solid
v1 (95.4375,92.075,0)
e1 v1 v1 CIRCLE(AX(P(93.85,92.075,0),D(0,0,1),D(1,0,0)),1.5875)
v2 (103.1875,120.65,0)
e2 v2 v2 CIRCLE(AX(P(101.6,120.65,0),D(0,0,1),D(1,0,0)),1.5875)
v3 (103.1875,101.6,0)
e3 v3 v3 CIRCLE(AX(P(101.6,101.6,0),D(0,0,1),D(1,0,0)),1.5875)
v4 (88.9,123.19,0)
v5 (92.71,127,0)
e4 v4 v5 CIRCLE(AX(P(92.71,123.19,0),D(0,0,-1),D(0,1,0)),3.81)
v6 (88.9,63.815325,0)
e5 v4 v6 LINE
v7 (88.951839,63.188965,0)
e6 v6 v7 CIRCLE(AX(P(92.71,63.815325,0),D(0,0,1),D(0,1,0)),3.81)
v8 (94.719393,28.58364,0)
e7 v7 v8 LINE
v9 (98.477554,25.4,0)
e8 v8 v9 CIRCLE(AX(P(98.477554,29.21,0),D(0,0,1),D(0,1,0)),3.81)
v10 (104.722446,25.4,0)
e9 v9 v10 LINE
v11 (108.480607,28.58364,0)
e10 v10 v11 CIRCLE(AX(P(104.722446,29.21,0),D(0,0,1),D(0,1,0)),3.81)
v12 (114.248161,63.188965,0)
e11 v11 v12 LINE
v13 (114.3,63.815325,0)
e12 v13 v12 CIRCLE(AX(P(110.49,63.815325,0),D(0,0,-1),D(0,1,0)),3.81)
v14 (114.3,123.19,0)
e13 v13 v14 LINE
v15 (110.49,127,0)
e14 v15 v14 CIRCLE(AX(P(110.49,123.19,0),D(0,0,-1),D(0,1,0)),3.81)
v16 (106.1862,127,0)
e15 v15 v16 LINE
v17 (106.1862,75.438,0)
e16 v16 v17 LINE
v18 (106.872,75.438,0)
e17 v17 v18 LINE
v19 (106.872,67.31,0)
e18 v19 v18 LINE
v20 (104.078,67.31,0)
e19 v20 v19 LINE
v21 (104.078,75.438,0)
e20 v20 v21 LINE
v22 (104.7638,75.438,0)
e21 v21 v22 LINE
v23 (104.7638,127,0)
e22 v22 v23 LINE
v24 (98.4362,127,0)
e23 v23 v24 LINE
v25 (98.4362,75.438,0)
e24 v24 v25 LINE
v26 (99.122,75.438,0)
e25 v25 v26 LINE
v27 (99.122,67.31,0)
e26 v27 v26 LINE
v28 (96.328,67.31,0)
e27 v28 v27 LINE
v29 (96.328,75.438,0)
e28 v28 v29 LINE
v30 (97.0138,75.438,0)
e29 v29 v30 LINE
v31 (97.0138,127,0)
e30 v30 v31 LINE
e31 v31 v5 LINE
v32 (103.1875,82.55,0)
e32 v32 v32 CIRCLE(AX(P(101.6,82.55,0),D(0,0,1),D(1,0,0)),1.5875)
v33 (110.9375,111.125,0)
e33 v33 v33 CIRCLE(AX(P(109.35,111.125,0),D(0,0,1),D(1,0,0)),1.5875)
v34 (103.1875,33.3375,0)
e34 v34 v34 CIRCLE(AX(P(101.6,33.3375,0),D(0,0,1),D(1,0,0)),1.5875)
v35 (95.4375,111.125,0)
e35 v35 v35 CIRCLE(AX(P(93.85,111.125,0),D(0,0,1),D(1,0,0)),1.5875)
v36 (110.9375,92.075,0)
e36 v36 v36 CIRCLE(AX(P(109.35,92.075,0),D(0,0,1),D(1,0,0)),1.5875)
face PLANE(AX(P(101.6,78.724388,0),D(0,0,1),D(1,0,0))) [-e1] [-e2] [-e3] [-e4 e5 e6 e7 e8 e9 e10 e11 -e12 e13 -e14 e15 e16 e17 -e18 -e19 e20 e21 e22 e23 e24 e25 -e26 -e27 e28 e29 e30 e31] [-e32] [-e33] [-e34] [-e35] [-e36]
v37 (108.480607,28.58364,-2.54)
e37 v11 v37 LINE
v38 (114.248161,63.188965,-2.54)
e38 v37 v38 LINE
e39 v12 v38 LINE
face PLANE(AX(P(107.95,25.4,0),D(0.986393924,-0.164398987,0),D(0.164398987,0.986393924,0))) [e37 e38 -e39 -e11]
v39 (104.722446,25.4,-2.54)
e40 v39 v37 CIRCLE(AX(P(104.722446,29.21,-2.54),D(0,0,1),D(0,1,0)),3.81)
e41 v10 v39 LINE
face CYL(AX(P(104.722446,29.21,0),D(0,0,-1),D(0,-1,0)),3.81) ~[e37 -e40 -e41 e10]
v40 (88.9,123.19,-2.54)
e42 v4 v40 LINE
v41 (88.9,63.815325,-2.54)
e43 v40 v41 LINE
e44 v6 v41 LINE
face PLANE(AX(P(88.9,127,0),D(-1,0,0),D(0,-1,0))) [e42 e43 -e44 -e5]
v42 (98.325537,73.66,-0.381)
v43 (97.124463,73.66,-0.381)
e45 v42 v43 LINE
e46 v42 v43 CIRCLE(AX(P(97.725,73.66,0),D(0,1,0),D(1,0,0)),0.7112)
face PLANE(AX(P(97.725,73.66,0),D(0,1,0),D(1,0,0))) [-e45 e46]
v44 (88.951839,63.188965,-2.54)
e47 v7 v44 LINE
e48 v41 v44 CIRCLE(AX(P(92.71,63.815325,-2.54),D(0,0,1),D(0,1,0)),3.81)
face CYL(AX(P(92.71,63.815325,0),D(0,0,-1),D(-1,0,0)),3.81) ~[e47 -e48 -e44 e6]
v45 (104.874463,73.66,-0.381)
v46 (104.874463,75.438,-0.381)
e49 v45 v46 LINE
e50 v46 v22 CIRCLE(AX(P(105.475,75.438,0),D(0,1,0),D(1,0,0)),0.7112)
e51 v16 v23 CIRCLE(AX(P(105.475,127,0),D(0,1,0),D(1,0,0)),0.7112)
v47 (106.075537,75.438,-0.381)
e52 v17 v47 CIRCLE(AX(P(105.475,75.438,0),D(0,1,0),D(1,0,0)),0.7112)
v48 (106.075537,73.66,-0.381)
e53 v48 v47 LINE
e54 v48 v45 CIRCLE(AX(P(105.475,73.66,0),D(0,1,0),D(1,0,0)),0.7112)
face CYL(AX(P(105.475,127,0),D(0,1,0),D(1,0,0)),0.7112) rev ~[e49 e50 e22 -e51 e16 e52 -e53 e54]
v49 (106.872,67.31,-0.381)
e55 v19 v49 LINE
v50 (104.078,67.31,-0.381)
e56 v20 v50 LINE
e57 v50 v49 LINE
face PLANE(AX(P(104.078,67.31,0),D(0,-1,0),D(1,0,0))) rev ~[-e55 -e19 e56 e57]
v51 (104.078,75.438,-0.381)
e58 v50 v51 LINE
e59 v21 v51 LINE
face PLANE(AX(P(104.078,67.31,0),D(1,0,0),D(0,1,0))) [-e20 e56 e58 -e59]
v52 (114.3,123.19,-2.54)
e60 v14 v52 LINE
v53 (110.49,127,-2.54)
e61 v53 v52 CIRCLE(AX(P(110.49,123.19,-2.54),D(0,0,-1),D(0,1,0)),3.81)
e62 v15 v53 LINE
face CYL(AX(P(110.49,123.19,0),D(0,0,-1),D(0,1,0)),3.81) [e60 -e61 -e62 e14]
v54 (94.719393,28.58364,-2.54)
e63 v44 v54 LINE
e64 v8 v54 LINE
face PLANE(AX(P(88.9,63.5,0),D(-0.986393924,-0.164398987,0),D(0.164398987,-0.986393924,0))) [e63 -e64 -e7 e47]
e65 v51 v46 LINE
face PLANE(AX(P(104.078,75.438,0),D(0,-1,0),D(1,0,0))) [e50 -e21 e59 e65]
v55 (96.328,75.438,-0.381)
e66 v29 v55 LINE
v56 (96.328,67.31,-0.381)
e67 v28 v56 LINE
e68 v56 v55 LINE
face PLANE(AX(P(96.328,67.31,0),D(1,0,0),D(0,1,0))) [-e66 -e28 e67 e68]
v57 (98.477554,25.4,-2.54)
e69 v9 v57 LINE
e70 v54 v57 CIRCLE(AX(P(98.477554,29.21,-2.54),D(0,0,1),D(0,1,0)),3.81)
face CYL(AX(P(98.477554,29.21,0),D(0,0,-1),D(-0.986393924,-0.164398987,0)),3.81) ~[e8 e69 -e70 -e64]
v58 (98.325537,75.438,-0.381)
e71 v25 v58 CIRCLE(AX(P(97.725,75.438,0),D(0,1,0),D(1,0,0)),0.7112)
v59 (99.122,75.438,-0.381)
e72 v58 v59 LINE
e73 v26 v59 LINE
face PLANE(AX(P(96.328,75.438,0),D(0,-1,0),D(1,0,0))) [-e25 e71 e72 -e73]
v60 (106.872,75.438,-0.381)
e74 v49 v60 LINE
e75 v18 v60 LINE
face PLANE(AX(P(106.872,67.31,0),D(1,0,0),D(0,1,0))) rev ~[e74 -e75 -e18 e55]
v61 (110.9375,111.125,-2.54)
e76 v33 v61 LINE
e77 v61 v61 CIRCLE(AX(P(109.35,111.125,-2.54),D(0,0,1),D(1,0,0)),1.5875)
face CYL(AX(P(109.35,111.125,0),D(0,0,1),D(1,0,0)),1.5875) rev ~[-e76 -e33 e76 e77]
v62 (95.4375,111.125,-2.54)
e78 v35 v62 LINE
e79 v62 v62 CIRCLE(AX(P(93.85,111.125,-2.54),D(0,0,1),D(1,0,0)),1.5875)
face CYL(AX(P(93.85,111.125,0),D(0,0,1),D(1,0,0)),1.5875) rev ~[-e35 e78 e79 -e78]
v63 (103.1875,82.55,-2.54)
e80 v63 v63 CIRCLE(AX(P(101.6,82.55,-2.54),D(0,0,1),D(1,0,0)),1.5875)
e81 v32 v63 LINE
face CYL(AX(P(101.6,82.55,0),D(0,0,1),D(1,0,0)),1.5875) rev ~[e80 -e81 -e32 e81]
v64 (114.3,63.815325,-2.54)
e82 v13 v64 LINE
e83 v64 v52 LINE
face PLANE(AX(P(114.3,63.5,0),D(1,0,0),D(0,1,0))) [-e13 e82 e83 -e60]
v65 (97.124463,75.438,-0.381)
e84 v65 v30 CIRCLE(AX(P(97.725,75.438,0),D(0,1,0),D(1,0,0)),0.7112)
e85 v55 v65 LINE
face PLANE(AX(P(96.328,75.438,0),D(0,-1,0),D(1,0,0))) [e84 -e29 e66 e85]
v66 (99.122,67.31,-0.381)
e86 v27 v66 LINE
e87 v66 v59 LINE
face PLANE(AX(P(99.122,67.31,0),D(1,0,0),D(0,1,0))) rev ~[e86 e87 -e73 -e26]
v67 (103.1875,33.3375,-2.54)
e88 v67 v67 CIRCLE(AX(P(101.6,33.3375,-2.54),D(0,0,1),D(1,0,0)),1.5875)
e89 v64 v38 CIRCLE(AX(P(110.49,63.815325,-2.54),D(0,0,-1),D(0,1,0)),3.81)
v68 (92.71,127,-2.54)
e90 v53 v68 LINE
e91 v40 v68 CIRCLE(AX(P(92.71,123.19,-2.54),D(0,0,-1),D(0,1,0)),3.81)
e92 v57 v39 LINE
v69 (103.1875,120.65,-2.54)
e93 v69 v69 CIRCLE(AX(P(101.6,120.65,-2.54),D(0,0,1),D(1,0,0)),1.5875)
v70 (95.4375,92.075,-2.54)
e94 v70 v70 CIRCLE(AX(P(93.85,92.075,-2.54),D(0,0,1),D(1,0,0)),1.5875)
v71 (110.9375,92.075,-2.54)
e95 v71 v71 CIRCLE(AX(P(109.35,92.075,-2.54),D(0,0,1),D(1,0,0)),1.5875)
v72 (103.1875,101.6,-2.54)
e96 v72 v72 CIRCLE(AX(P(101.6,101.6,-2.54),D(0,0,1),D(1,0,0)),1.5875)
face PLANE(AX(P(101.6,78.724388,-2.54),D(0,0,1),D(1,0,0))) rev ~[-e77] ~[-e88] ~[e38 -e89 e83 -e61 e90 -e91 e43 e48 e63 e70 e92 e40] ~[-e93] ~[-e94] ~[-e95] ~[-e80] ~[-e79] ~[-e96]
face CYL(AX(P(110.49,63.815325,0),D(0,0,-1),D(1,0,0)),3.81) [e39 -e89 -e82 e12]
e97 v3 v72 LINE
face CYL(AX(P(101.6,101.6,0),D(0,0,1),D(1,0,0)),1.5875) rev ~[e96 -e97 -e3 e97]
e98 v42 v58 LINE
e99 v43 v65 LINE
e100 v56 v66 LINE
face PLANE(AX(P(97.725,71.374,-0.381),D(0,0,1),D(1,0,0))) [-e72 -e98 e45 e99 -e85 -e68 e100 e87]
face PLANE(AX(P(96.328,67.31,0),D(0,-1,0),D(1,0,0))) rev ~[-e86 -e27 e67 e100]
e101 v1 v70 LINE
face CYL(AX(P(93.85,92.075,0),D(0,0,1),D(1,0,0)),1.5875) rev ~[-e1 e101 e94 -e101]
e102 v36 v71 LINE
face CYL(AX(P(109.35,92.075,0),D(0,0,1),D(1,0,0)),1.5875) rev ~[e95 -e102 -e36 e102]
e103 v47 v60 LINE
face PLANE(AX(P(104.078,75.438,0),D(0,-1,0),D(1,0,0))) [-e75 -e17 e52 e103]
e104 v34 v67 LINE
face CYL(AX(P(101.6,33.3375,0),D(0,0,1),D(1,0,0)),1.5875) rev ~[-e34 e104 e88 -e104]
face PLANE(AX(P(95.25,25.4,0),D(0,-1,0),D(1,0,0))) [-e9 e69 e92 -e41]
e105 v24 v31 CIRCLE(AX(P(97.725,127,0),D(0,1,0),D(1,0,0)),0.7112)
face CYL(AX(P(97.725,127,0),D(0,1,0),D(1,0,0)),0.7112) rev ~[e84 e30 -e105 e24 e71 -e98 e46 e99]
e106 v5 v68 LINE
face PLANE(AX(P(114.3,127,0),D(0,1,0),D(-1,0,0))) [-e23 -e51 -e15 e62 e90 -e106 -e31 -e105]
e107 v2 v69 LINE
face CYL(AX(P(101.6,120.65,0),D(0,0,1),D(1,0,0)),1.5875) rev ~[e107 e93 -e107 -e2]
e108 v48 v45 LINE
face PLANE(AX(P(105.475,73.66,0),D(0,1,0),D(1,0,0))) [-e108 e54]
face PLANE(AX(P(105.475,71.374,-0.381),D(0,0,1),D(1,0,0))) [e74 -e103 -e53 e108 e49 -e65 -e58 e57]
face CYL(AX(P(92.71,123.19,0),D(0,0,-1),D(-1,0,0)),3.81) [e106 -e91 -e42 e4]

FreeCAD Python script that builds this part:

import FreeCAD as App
import Part
import Sketcher
Q = App.Units.Quantity


def edges_at(feature, points):
    """Names of the edges that pass closest to the given points."""
    edges = feature.Shape.Edges
    near = lambda p: min(range(len(edges)), key=lambda i: edges[i].distToShape(Part.Vertex(*p))[0])
    return sorted({f"Edge{near(p) + 1}" for p in points})

doc = App.newDocument("Part")
body = doc.addObject("PartDesign::Body", "Body")

# Sketch on XY plane
sketch1 = body.newObject("Sketcher::SketchObject", "Sketch")
sketch1.AttachmentSupport = (doc.getObject("XY_Plane"), [""])
sketch1.MapMode = "FlatFace"
sketch1.addGeometry([
    Part.LineSegment(App.Vector(88.9, 127, 0), App.Vector(88.9, 63.5, 0)),  # 0
    Part.LineSegment(App.Vector(88.9, 63.5, 0), App.Vector(95.25, 25.4, 0)),  # 1
    Part.LineSegment(App.Vector(95.25, 25.4, 0), App.Vector(107.95, 25.4, 0)),  # 2
    Part.LineSegment(App.Vector(107.95, 25.4, 0), App.Vector(114.3, 63.5, 0)),  # 3
    Part.LineSegment(App.Vector(114.3, 63.5, 0), App.Vector(114.3, 127, 0)),  # 4
    Part.LineSegment(App.Vector(114.3, 127, 0), App.Vector(88.9, 127, 0)),  # 5
], False)
sketch1.addConstraint([
    Sketcher.Constraint("Coincident", 0, 2, 1, 1),
    Sketcher.Constraint("Coincident", 1, 2, 2, 1),
    Sketcher.Constraint("Coincident", 2, 2, 3, 1),
    Sketcher.Constraint("Coincident", 3, 2, 4, 1),
    Sketcher.Constraint("Coincident", 4, 2, 5, 1),
    Sketcher.Constraint("Coincident", 5, 2, 0, 1),
    Sketcher.Constraint("Vertical", 0),
    Sketcher.Constraint("Horizontal", 2),
    Sketcher.Constraint("Vertical", 4),
    Sketcher.Constraint("Horizontal", 5),
    Sketcher.Constraint("Horizontal", 0, 2, 3, 2),
    Sketcher.Constraint("Equal", 1, 3),
    Sketcher.Constraint("DistanceX", 5, 2, 5, 1, Q("1 in")),
    Sketcher.Constraint("DistanceX", 2, 1, 2, 2, Q("0.5 in")),
    Sketcher.Constraint("DistanceY", 0, 2, 0, 1, Q("2.5 in")),
    Sketcher.Constraint("DistanceY", -1, 1, 1, 2, Q("1 in")),
    Sketcher.Constraint("DistanceY", -1, 1, 4, 2, Q("5 in")),
    Sketcher.Constraint("DistanceX", -1, 1, 0, 2, Q("3.5 in")),
])
pad1 = body.newObject("PartDesign::Pad", "Pad")
pad1.Profile = sketch1
pad1.Length = Q("0.1 in")
pad1.Reversed = True

# Sketch on XY plane
sketch2 = body.newObject("Sketcher::SketchObject", "Sketch001")
sketch2.AttachmentSupport = (doc.getObject("XY_Plane"), [""])
sketch2.MapMode = "FlatFace"
sketch2.addGeometry([
    Part.Circle(App.Vector(93.85, 111.125, 0), App.Vector(0, 0, 1), 1.5875),  # 0
    Part.Circle(App.Vector(101.6, 120.65, 0), App.Vector(0, 0, 1), 1.5875),  # 1
    Part.Circle(App.Vector(109.35, 111.125, 0), App.Vector(0, 0, 1), 1.5875),  # 2
    Part.Circle(App.Vector(101.6, 101.6, 0), App.Vector(0, 0, 1), 1.5875),  # 3
    Part.Circle(App.Vector(93.85, 92.075, 0), App.Vector(0, 0, 1), 1.5875),  # 4
    Part.Circle(App.Vector(109.35, 92.075, 0), App.Vector(0, 0, 1), 1.5875),  # 5
    Part.Circle(App.Vector(101.6, 82.55, 0), App.Vector(0, 0, 1), 1.5875),  # 6
], False)
sketch2.addConstraint([
    Sketcher.Constraint("Equal", 0, 1),
    Sketcher.Constraint("Equal", 1, 2),
    Sketcher.Constraint("Equal", 2, 3),
    Sketcher.Constraint("Equal", 3, 4),
    Sketcher.Constraint("Equal", 4, 5),
    Sketcher.Constraint("Equal", 5, 6),
    Sketcher.Constraint("Horizontal", 0, 3, 2, 3),
    Sketcher.Constraint("Horizontal", 4, 3, 5, 3),
    Sketcher.Constraint("Vertical", 1, 3, 3, 3),
    Sketcher.Constraint("Vertical", 0, 3, 4, 3),
    Sketcher.Constraint("Vertical", 2, 3, 5, 3),
    Sketcher.Constraint("Vertical", 3, 3, 6, 3),
    Sketcher.Constraint("Diameter", 0, Q("0.125 in")),
    Sketcher.Constraint("DistanceX", -1, 1, 1, 3, Q("4 in")),
    Sketcher.Constraint("DistanceY", -1, 1, 3, 3, Q("4 in")),
    Sketcher.Constraint("DistanceY", -1, 1, 1, 3, Q("4.75 in")),
    Sketcher.Constraint("DistanceY", -1, 1, 6, 3, Q("3.25 in")),
    Sketcher.Constraint("DistanceY", 4, 3, 0, 3, Q("0.75 in")),
    Sketcher.Constraint("DistanceY", -1, 1, 0, 3, Q("4.375 in")),
    Sketcher.Constraint("DistanceX", -1, 1, 0, 3, 93.85),
    Sketcher.Constraint("DistanceX", -1, 1, 2, 3, 109.35),
])
pocket1 = body.newObject("PartDesign::Pocket", "Pocket")
pocket1.Profile = sketch2
pocket1.Length = Q("0.1 in")

# Sketch on XY plane
sketch3 = body.newObject("Sketcher::SketchObject", "Sketch002")
sketch3.AttachmentSupport = (doc.getObject("XY_Plane"), [""])
sketch3.MapMode = "FlatFace"
sketch3.addGeometry([
    Part.LineSegment(App.Vector(96.328, 75.438, 0), App.Vector(96.328, 67.31, 0)),  # 0
    Part.LineSegment(App.Vector(96.328, 67.31, 0), App.Vector(99.122, 67.31, 0)),  # 1
    Part.LineSegment(App.Vector(99.122, 67.31, 0), App.Vector(99.122, 75.438, 0)),  # 2
    Part.LineSegment(App.Vector(99.122, 75.438, 0), App.Vector(96.328, 75.438, 0)),  # 3
    Part.LineSegment(App.Vector(104.078, 75.438, 0), App.Vector(104.078, 67.31, 0)),  # 4
    Part.LineSegment(App.Vector(104.078, 67.31, 0), App.Vector(106.872, 67.31, 0)),  # 5
    Part.LineSegment(App.Vector(106.872, 67.31, 0), App.Vector(106.872, 75.438, 0)),  # 6
    Part.LineSegment(App.Vector(106.872, 75.438, 0), App.Vector(104.078, 75.438, 0)),  # 7
], False)
sketch3.addConstraint([
    Sketcher.Constraint("Coincident", 0, 2, 1, 1),
    Sketcher.Constraint("Coincident", 1, 2, 2, 1),
    Sketcher.Constraint("Coincident", 2, 2, 3, 1),
    Sketcher.Constraint("Coincident", 3, 2, 0, 1),
    Sketcher.Constraint("Coincident", 4, 2, 5, 1),
    Sketcher.Constraint("Coincident", 5, 2, 6, 1),
    Sketcher.Constraint("Coincident", 6, 2, 7, 1),
    Sketcher.Constraint("Coincident", 7, 2, 4, 1),
    Sketcher.Constraint("Vertical", 0),
    Sketcher.Constraint("Horizontal", 1),
    Sketcher.Constraint("Vertical", 2),
    Sketcher.Constraint("Horizontal", 3),
    Sketcher.Constraint("Vertical", 4),
    Sketcher.Constraint("Horizontal", 5),
    Sketcher.Constraint("Vertical", 6),
    Sketcher.Constraint("Horizontal", 7),
    Sketcher.Constraint("Horizontal", 1, 2, 4, 2),
    Sketcher.Constraint("Horizontal", 3, 2, 6, 2),
    Sketcher.Constraint("Equal", 3, 5),
    Sketcher.Constraint("DistanceX", 1, 1, 1, 2, Q("0.11 in")),
    Sketcher.Constraint("DistanceY", 0, 2, 0, 1, Q("0.32 in")),
    Sketcher.Constraint("DistanceY", -1, 1, 0, 2, Q("2.65 in")),
    Sketcher.Constraint("DistanceX", -1, 1, 0, 2, 96.328),
    Sketcher.Constraint("DistanceX", -1, 1, 4, 2, 104.078),
])
pocket2 = body.newObject("PartDesign::Pocket", "Pocket001")
pocket2.Profile = sketch3
pocket2.Length = Q("0.015 in")

# Sketch on XZ plane
sketch4 = body.newObject("Sketcher::SketchObject", "Sketch003")
sketch4.AttachmentSupport = (doc.getObject("XZ_Plane"), [""])
sketch4.MapMode = "FlatFace"
sketch4.AttachmentOffset = App.Placement(App.Vector(0, 0, -5 * 25.4), App.Rotation())
sketch4.addGeometry([
    Part.Circle(App.Vector(97.725, 0, 0), App.Vector(0, 0, 1), 0.7112),
    Part.Circle(App.Vector(105.475, 0, 0), App.Vector(0, 0, 1), 0.7112),
], False)
sketch4.addConstraint([
    Sketcher.Constraint("Equal", 0, 1),
    Sketcher.Constraint("PointOnObject", 0, 3, -1),
    Sketcher.Constraint("PointOnObject", 1, 3, -1),
    Sketcher.Constraint("Diameter", 0, Q("0.056 in")),
    Sketcher.Constraint("DistanceX", -1, 1, 0, 3, 97.725),
    Sketcher.Constraint("DistanceX", -1, 1, 1, 3, 105.475),
])
pocket3 = body.newObject("PartDesign::Pocket", "Pocket002")
pocket3.Profile = sketch4
pocket3.Length = Q("2.1 in")
pocket3.Reversed = True
doc.recompute()

fillet = body.newObject("PartDesign::Fillet", "Fillet")
fillet.Base = (pocket3, edges_at(pocket3, [
    (95.25, 25.4, -1.27),
    (88.9, 63.5, -1.27),
    (88.9, 127, -1.27),
    (114.3, 127, -1.27),
    (114.3, 63.5, -1.27),
    (107.95, 25.4, -1.27),
]))
fillet.Radius = Q("0.15 in")

# Sketch on XY plane
sketch5 = body.newObject("Sketcher::SketchObject", "Sketch004")
sketch5.AttachmentSupport = (doc.getObject("XY_Plane"), [""])
sketch5.MapMode = "FlatFace"
sketch5.addGeometry(Part.Circle(App.Vector(101.6, 33.3375, 0), App.Vector(0, 0, 1), 1.5875), False)
sketch5.addConstraint([
    Sketcher.Constraint("Diameter", 0, Q("0.125 in")),
    Sketcher.Constraint("DistanceX", -1, 1, 0, 3, Q("4 in")),
    Sketcher.Constraint("DistanceY", -1, 1, 0, 3, Q("1.3125 in")),
])
pocket4 = body.newObject("PartDesign::Pocket", "Pocket003")
pocket4.Profile = sketch5
pocket4.Length = Q("0.1 in")

doc.recompute()
